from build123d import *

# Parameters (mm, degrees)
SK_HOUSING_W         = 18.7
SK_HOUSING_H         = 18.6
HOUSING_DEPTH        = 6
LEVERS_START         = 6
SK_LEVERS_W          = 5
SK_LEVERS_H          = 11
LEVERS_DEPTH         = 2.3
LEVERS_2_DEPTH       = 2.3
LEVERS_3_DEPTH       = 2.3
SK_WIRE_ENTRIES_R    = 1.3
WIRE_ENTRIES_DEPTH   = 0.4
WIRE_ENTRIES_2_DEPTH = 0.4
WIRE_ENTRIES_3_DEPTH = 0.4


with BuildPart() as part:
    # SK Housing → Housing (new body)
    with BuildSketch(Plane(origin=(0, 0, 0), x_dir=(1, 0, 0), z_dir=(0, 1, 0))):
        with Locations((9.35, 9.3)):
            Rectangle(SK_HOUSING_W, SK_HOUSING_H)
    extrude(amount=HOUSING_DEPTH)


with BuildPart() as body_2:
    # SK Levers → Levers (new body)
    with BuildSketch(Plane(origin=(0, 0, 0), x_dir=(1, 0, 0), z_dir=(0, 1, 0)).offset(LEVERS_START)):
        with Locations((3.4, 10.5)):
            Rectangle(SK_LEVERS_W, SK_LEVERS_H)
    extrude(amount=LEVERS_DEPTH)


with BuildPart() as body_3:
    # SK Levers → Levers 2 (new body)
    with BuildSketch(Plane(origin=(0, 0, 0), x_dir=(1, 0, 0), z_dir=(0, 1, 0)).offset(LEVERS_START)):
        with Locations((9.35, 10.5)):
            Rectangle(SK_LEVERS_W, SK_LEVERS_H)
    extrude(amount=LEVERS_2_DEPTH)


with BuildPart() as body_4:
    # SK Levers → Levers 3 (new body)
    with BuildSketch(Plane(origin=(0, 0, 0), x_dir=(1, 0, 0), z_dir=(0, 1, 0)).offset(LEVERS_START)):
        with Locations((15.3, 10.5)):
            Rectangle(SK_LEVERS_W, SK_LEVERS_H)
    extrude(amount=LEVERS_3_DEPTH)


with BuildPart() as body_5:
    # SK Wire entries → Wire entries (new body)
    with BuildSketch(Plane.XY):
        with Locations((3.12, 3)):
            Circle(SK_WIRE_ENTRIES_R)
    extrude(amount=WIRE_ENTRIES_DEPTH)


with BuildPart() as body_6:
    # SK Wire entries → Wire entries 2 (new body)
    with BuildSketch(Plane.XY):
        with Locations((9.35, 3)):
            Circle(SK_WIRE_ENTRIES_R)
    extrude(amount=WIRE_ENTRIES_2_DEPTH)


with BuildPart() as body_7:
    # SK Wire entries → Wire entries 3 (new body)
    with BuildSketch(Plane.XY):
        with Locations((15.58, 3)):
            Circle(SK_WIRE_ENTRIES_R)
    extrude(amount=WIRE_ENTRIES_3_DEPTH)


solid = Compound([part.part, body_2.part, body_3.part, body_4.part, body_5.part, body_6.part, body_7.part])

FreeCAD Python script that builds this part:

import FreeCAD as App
import Part
import Sketcher


def add_polygon(sketch, points):
    """Adds a closed chain of lines whose ends are joined by coincident constraints."""
    first, n = sketch.GeometryCount, len(points)
    for a, b in zip(points, points[1:] + points[:1]):
        sketch.addGeometry(Part.LineSegment(App.Vector(*a, 0), App.Vector(*b, 0)), False)
    for i in range(n):
        sketch.addConstraint(Sketcher.Constraint("Coincident", first + i, 2, first + (i + 1) % n, 1))

doc = App.newDocument("Part")
body = doc.addObject("PartDesign::Body", "Body")

# Sketch on XZ plane
sketch1 = body.newObject("Sketcher::SketchObject", "Sketch")
sketch1.AttachmentSupport = (doc.getObject("XZ_Plane"), [""])
sketch1.MapMode = "FlatFace"
add_polygon(sketch1, [(0, -19), (0, 0), (19, 0), (19, -19)])  # lines 0-3
sketch1.addConstraint(Sketcher.Constraint("Vertical", 0))
sketch1.addConstraint(Sketcher.Constraint("Horizontal", 1))
sketch1.addConstraint(Sketcher.Constraint("Vertical", 2))
sketch1.addConstraint(Sketcher.Constraint("Horizontal", 3))
sketch1.addConstraint(Sketcher.Constraint("Coincident", 0, 2, -1, 1))
sketch1.addConstraint(Sketcher.Constraint("DistanceX", 1, 1, 1, 2, 18.7))
sketch1.addConstraint(Sketcher.Constraint("DistanceY", 0, 1, 0, 2, 18.6))
pad1 = body.newObject("PartDesign::Pad", "Pad")
pad1.Profile = sketch1
pad1.Length = 6
pad1.Reversed = True
body2 = doc.addObject("PartDesign::Body", "Body001")

# Sketch on XZ plane
sketch2 = body2.newObject("Sketcher::SketchObject", "Sketch001")
sketch2.AttachmentSupport = (doc.getObject("XZ_Plane001"), [""])
sketch2.MapMode = "FlatFace"
sketch2.AttachmentOffset = App.Placement(App.Vector(0, 0, -6), App.Rotation())
add_polygon(sketch2, [(1, -16), (1, -5), (6, -5), (6, -16)])  # lines 0-3
sketch2.addConstraint(Sketcher.Constraint("Vertical", 0))
sketch2.addConstraint(Sketcher.Constraint("Horizontal", 1))
sketch2.addConstraint(Sketcher.Constraint("Vertical", 2))
sketch2.addConstraint(Sketcher.Constraint("Horizontal", 3))
sketch2.addConstraint(Sketcher.Constraint("DistanceX", 1, 1, 1, 2, 5.0))
sketch2.addConstraint(Sketcher.Constraint("DistanceY", 0, 1, 0, 2, 11.0))
sketch2.addConstraint(Sketcher.Constraint("DistanceY", 0, 2, -1, 1, 5.0))
sketch2.addConstraint(Sketcher.Constraint("DistanceX", -1, 1, 0, 2, 0.9))
pad2 = body2.newObject("PartDesign::Pad", "Pad001")
pad2.Profile = sketch2
pad2.Length = 2.3
pad2.Reversed = True
body3 = doc.addObject("PartDesign::Body", "Body002")

# Sketch on XZ plane
sketch3 = body3.newObject("Sketcher::SketchObject", "Sketch002")
sketch3.AttachmentSupport = (doc.getObject("XZ_Plane002"), [""])
sketch3.MapMode = "FlatFace"
sketch3.AttachmentOffset = App.Placement(App.Vector(0, 0, -6), App.Rotation())
add_polygon(sketch3, [(7, -16), (7, -5), (12, -5), (12, -16)])  # lines 0-3
sketch3.addConstraint(Sketcher.Constraint("Vertical", 0))
sketch3.addConstraint(Sketcher.Constraint("Horizontal", 1))
sketch3.addConstraint(Sketcher.Constraint("Vertical", 2))
sketch3.addConstraint(Sketcher.Constraint("Horizontal", 3))
sketch3.addConstraint(Sketcher.Constraint("DistanceX", 1, 1, 1, 2, 5.0))
sketch3.addConstraint(Sketcher.Constraint("DistanceY", 0, 1, 0, 2, 11.0))
sketch3.addConstraint(Sketcher.Constraint("DistanceY", 0, 2, -1, 1, 5.0))
sketch3.addConstraint(Sketcher.Constraint("DistanceX", -1, 1, 0, 2, 6.85))
pad3 = body3.newObject("PartDesign::Pad", "Pad002")
pad3.Profile = sketch3
pad3.Length = 2.3
pad3.Reversed = True
body4 = doc.addObject("PartDesign::Body", "Body003")

# Sketch on XZ plane
sketch4 = body4.newObject("Sketcher::SketchObject", "Sketch003")
sketch4.AttachmentSupport = (doc.getObject("XZ_Plane003"), [""])
sketch4.MapMode = "FlatFace"
sketch4.AttachmentOffset = App.Placement(App.Vector(0, 0, -6), App.Rotation())
add_polygon(sketch4, [(13, -16), (13, -5), (18, -5), (18, -16)])  # lines 0-3
sketch4.addConstraint(Sketcher.Constraint("Vertical", 0))
sketch4.addConstraint(Sketcher.Constraint("Horizontal", 1))
sketch4.addConstraint(Sketcher.Constraint("Vertical", 2))
sketch4.addConstraint(Sketcher.Constraint("Horizontal", 3))
sketch4.addConstraint(Sketcher.Constraint("DistanceX", 1, 1, 1, 2, 5.0))
sketch4.addConstraint(Sketcher.Constraint("DistanceY", 0, 1, 0, 2, 11.0))
sketch4.addConstraint(Sketcher.Constraint("DistanceY", 0, 2, -1, 1, 5.0))
sketch4.addConstraint(Sketcher.Constraint("DistanceX", -1, 1, 0, 2, 12.8))
pad4 = body4.newObject("PartDesign::Pad", "Pad003")
pad4.Profile = sketch4
pad4.Length = 2.3
pad4.Reversed = True
body5 = doc.addObject("PartDesign::Body", "Body004")

# Sketch on XY plane
sketch5 = body5.newObject("Sketcher::SketchObject", "Sketch004")
sketch5.AttachmentSupport = (doc.getObject("XY_Plane004"), [""])
sketch5.MapMode = "FlatFace"
sketch5.addGeometry(Part.Circle(App.Vector(3.1, 3, 0), App.Vector(0, 0, 1), 1.3), False)
sketch5.addConstraint(Sketcher.Constraint("Diameter", 0, 2.6))
sketch5.addConstraint(Sketcher.Constraint("DistanceY", -1, 1, 0, 3, 3.0))
sketch5.addConstraint(Sketcher.Constraint("DistanceX", -1, 1, 0, 3, 3.12))
pad5 = body5.newObject("PartDesign::Pad", "Pad004")
pad5.Profile = sketch5
pad5.Length = 0.4
body6 = doc.addObject("PartDesign::Body", "Body005")

# Sketch on XY plane
sketch6 = body6.newObject("Sketcher::SketchObject", "Sketch005")
sketch6.AttachmentSupport = (doc.getObject("XY_Plane005"), [""])
sketch6.MapMode = "FlatFace"
sketch6.addGeometry(Part.Circle(App.Vector(9.3, 3, 0), App.Vector(0, 0, 1), 1.3), False)
sketch6.addConstraint(Sketcher.Constraint("Diameter", 0, 2.6))
sketch6.addConstraint(Sketcher.Constraint("DistanceY", -1, 1, 0, 3, 3.0))
sketch6.addConstraint(Sketcher.Constraint("DistanceX", -1, 1, 0, 3, 9.35))
pad6 = body6.newObject("PartDesign::Pad", "Pad005")
pad6.Profile = sketch6
pad6.Length = 0.4
body7 = doc.addObject("PartDesign::Body", "Body006")

# Sketch on XY plane
sketch7 = body7.newObject("Sketcher::SketchObject", "Sketch006")
sketch7.AttachmentSupport = (doc.getObject("XY_Plane006"), [""])
sketch7.MapMode = "FlatFace"
sketch7.addGeometry(Part.Circle(App.Vector(15.6, 3, 0), App.Vector(0, 0, 1), 1.3), False)
sketch7.addConstraint(Sketcher.Constraint("Diameter", 0, 2.6))
sketch7.addConstraint(Sketcher.Constraint("DistanceY", -1, 1, 0, 3, 3.0))
sketch7.addConstraint(Sketcher.Constraint("DistanceX", -1, 1, 0, 3, 15.58))
pad7 = body7.newObject("PartDesign::Pad", "Pad006")
pad7.Profile = sketch7
pad7.Length = 0.4

doc.recompute()
